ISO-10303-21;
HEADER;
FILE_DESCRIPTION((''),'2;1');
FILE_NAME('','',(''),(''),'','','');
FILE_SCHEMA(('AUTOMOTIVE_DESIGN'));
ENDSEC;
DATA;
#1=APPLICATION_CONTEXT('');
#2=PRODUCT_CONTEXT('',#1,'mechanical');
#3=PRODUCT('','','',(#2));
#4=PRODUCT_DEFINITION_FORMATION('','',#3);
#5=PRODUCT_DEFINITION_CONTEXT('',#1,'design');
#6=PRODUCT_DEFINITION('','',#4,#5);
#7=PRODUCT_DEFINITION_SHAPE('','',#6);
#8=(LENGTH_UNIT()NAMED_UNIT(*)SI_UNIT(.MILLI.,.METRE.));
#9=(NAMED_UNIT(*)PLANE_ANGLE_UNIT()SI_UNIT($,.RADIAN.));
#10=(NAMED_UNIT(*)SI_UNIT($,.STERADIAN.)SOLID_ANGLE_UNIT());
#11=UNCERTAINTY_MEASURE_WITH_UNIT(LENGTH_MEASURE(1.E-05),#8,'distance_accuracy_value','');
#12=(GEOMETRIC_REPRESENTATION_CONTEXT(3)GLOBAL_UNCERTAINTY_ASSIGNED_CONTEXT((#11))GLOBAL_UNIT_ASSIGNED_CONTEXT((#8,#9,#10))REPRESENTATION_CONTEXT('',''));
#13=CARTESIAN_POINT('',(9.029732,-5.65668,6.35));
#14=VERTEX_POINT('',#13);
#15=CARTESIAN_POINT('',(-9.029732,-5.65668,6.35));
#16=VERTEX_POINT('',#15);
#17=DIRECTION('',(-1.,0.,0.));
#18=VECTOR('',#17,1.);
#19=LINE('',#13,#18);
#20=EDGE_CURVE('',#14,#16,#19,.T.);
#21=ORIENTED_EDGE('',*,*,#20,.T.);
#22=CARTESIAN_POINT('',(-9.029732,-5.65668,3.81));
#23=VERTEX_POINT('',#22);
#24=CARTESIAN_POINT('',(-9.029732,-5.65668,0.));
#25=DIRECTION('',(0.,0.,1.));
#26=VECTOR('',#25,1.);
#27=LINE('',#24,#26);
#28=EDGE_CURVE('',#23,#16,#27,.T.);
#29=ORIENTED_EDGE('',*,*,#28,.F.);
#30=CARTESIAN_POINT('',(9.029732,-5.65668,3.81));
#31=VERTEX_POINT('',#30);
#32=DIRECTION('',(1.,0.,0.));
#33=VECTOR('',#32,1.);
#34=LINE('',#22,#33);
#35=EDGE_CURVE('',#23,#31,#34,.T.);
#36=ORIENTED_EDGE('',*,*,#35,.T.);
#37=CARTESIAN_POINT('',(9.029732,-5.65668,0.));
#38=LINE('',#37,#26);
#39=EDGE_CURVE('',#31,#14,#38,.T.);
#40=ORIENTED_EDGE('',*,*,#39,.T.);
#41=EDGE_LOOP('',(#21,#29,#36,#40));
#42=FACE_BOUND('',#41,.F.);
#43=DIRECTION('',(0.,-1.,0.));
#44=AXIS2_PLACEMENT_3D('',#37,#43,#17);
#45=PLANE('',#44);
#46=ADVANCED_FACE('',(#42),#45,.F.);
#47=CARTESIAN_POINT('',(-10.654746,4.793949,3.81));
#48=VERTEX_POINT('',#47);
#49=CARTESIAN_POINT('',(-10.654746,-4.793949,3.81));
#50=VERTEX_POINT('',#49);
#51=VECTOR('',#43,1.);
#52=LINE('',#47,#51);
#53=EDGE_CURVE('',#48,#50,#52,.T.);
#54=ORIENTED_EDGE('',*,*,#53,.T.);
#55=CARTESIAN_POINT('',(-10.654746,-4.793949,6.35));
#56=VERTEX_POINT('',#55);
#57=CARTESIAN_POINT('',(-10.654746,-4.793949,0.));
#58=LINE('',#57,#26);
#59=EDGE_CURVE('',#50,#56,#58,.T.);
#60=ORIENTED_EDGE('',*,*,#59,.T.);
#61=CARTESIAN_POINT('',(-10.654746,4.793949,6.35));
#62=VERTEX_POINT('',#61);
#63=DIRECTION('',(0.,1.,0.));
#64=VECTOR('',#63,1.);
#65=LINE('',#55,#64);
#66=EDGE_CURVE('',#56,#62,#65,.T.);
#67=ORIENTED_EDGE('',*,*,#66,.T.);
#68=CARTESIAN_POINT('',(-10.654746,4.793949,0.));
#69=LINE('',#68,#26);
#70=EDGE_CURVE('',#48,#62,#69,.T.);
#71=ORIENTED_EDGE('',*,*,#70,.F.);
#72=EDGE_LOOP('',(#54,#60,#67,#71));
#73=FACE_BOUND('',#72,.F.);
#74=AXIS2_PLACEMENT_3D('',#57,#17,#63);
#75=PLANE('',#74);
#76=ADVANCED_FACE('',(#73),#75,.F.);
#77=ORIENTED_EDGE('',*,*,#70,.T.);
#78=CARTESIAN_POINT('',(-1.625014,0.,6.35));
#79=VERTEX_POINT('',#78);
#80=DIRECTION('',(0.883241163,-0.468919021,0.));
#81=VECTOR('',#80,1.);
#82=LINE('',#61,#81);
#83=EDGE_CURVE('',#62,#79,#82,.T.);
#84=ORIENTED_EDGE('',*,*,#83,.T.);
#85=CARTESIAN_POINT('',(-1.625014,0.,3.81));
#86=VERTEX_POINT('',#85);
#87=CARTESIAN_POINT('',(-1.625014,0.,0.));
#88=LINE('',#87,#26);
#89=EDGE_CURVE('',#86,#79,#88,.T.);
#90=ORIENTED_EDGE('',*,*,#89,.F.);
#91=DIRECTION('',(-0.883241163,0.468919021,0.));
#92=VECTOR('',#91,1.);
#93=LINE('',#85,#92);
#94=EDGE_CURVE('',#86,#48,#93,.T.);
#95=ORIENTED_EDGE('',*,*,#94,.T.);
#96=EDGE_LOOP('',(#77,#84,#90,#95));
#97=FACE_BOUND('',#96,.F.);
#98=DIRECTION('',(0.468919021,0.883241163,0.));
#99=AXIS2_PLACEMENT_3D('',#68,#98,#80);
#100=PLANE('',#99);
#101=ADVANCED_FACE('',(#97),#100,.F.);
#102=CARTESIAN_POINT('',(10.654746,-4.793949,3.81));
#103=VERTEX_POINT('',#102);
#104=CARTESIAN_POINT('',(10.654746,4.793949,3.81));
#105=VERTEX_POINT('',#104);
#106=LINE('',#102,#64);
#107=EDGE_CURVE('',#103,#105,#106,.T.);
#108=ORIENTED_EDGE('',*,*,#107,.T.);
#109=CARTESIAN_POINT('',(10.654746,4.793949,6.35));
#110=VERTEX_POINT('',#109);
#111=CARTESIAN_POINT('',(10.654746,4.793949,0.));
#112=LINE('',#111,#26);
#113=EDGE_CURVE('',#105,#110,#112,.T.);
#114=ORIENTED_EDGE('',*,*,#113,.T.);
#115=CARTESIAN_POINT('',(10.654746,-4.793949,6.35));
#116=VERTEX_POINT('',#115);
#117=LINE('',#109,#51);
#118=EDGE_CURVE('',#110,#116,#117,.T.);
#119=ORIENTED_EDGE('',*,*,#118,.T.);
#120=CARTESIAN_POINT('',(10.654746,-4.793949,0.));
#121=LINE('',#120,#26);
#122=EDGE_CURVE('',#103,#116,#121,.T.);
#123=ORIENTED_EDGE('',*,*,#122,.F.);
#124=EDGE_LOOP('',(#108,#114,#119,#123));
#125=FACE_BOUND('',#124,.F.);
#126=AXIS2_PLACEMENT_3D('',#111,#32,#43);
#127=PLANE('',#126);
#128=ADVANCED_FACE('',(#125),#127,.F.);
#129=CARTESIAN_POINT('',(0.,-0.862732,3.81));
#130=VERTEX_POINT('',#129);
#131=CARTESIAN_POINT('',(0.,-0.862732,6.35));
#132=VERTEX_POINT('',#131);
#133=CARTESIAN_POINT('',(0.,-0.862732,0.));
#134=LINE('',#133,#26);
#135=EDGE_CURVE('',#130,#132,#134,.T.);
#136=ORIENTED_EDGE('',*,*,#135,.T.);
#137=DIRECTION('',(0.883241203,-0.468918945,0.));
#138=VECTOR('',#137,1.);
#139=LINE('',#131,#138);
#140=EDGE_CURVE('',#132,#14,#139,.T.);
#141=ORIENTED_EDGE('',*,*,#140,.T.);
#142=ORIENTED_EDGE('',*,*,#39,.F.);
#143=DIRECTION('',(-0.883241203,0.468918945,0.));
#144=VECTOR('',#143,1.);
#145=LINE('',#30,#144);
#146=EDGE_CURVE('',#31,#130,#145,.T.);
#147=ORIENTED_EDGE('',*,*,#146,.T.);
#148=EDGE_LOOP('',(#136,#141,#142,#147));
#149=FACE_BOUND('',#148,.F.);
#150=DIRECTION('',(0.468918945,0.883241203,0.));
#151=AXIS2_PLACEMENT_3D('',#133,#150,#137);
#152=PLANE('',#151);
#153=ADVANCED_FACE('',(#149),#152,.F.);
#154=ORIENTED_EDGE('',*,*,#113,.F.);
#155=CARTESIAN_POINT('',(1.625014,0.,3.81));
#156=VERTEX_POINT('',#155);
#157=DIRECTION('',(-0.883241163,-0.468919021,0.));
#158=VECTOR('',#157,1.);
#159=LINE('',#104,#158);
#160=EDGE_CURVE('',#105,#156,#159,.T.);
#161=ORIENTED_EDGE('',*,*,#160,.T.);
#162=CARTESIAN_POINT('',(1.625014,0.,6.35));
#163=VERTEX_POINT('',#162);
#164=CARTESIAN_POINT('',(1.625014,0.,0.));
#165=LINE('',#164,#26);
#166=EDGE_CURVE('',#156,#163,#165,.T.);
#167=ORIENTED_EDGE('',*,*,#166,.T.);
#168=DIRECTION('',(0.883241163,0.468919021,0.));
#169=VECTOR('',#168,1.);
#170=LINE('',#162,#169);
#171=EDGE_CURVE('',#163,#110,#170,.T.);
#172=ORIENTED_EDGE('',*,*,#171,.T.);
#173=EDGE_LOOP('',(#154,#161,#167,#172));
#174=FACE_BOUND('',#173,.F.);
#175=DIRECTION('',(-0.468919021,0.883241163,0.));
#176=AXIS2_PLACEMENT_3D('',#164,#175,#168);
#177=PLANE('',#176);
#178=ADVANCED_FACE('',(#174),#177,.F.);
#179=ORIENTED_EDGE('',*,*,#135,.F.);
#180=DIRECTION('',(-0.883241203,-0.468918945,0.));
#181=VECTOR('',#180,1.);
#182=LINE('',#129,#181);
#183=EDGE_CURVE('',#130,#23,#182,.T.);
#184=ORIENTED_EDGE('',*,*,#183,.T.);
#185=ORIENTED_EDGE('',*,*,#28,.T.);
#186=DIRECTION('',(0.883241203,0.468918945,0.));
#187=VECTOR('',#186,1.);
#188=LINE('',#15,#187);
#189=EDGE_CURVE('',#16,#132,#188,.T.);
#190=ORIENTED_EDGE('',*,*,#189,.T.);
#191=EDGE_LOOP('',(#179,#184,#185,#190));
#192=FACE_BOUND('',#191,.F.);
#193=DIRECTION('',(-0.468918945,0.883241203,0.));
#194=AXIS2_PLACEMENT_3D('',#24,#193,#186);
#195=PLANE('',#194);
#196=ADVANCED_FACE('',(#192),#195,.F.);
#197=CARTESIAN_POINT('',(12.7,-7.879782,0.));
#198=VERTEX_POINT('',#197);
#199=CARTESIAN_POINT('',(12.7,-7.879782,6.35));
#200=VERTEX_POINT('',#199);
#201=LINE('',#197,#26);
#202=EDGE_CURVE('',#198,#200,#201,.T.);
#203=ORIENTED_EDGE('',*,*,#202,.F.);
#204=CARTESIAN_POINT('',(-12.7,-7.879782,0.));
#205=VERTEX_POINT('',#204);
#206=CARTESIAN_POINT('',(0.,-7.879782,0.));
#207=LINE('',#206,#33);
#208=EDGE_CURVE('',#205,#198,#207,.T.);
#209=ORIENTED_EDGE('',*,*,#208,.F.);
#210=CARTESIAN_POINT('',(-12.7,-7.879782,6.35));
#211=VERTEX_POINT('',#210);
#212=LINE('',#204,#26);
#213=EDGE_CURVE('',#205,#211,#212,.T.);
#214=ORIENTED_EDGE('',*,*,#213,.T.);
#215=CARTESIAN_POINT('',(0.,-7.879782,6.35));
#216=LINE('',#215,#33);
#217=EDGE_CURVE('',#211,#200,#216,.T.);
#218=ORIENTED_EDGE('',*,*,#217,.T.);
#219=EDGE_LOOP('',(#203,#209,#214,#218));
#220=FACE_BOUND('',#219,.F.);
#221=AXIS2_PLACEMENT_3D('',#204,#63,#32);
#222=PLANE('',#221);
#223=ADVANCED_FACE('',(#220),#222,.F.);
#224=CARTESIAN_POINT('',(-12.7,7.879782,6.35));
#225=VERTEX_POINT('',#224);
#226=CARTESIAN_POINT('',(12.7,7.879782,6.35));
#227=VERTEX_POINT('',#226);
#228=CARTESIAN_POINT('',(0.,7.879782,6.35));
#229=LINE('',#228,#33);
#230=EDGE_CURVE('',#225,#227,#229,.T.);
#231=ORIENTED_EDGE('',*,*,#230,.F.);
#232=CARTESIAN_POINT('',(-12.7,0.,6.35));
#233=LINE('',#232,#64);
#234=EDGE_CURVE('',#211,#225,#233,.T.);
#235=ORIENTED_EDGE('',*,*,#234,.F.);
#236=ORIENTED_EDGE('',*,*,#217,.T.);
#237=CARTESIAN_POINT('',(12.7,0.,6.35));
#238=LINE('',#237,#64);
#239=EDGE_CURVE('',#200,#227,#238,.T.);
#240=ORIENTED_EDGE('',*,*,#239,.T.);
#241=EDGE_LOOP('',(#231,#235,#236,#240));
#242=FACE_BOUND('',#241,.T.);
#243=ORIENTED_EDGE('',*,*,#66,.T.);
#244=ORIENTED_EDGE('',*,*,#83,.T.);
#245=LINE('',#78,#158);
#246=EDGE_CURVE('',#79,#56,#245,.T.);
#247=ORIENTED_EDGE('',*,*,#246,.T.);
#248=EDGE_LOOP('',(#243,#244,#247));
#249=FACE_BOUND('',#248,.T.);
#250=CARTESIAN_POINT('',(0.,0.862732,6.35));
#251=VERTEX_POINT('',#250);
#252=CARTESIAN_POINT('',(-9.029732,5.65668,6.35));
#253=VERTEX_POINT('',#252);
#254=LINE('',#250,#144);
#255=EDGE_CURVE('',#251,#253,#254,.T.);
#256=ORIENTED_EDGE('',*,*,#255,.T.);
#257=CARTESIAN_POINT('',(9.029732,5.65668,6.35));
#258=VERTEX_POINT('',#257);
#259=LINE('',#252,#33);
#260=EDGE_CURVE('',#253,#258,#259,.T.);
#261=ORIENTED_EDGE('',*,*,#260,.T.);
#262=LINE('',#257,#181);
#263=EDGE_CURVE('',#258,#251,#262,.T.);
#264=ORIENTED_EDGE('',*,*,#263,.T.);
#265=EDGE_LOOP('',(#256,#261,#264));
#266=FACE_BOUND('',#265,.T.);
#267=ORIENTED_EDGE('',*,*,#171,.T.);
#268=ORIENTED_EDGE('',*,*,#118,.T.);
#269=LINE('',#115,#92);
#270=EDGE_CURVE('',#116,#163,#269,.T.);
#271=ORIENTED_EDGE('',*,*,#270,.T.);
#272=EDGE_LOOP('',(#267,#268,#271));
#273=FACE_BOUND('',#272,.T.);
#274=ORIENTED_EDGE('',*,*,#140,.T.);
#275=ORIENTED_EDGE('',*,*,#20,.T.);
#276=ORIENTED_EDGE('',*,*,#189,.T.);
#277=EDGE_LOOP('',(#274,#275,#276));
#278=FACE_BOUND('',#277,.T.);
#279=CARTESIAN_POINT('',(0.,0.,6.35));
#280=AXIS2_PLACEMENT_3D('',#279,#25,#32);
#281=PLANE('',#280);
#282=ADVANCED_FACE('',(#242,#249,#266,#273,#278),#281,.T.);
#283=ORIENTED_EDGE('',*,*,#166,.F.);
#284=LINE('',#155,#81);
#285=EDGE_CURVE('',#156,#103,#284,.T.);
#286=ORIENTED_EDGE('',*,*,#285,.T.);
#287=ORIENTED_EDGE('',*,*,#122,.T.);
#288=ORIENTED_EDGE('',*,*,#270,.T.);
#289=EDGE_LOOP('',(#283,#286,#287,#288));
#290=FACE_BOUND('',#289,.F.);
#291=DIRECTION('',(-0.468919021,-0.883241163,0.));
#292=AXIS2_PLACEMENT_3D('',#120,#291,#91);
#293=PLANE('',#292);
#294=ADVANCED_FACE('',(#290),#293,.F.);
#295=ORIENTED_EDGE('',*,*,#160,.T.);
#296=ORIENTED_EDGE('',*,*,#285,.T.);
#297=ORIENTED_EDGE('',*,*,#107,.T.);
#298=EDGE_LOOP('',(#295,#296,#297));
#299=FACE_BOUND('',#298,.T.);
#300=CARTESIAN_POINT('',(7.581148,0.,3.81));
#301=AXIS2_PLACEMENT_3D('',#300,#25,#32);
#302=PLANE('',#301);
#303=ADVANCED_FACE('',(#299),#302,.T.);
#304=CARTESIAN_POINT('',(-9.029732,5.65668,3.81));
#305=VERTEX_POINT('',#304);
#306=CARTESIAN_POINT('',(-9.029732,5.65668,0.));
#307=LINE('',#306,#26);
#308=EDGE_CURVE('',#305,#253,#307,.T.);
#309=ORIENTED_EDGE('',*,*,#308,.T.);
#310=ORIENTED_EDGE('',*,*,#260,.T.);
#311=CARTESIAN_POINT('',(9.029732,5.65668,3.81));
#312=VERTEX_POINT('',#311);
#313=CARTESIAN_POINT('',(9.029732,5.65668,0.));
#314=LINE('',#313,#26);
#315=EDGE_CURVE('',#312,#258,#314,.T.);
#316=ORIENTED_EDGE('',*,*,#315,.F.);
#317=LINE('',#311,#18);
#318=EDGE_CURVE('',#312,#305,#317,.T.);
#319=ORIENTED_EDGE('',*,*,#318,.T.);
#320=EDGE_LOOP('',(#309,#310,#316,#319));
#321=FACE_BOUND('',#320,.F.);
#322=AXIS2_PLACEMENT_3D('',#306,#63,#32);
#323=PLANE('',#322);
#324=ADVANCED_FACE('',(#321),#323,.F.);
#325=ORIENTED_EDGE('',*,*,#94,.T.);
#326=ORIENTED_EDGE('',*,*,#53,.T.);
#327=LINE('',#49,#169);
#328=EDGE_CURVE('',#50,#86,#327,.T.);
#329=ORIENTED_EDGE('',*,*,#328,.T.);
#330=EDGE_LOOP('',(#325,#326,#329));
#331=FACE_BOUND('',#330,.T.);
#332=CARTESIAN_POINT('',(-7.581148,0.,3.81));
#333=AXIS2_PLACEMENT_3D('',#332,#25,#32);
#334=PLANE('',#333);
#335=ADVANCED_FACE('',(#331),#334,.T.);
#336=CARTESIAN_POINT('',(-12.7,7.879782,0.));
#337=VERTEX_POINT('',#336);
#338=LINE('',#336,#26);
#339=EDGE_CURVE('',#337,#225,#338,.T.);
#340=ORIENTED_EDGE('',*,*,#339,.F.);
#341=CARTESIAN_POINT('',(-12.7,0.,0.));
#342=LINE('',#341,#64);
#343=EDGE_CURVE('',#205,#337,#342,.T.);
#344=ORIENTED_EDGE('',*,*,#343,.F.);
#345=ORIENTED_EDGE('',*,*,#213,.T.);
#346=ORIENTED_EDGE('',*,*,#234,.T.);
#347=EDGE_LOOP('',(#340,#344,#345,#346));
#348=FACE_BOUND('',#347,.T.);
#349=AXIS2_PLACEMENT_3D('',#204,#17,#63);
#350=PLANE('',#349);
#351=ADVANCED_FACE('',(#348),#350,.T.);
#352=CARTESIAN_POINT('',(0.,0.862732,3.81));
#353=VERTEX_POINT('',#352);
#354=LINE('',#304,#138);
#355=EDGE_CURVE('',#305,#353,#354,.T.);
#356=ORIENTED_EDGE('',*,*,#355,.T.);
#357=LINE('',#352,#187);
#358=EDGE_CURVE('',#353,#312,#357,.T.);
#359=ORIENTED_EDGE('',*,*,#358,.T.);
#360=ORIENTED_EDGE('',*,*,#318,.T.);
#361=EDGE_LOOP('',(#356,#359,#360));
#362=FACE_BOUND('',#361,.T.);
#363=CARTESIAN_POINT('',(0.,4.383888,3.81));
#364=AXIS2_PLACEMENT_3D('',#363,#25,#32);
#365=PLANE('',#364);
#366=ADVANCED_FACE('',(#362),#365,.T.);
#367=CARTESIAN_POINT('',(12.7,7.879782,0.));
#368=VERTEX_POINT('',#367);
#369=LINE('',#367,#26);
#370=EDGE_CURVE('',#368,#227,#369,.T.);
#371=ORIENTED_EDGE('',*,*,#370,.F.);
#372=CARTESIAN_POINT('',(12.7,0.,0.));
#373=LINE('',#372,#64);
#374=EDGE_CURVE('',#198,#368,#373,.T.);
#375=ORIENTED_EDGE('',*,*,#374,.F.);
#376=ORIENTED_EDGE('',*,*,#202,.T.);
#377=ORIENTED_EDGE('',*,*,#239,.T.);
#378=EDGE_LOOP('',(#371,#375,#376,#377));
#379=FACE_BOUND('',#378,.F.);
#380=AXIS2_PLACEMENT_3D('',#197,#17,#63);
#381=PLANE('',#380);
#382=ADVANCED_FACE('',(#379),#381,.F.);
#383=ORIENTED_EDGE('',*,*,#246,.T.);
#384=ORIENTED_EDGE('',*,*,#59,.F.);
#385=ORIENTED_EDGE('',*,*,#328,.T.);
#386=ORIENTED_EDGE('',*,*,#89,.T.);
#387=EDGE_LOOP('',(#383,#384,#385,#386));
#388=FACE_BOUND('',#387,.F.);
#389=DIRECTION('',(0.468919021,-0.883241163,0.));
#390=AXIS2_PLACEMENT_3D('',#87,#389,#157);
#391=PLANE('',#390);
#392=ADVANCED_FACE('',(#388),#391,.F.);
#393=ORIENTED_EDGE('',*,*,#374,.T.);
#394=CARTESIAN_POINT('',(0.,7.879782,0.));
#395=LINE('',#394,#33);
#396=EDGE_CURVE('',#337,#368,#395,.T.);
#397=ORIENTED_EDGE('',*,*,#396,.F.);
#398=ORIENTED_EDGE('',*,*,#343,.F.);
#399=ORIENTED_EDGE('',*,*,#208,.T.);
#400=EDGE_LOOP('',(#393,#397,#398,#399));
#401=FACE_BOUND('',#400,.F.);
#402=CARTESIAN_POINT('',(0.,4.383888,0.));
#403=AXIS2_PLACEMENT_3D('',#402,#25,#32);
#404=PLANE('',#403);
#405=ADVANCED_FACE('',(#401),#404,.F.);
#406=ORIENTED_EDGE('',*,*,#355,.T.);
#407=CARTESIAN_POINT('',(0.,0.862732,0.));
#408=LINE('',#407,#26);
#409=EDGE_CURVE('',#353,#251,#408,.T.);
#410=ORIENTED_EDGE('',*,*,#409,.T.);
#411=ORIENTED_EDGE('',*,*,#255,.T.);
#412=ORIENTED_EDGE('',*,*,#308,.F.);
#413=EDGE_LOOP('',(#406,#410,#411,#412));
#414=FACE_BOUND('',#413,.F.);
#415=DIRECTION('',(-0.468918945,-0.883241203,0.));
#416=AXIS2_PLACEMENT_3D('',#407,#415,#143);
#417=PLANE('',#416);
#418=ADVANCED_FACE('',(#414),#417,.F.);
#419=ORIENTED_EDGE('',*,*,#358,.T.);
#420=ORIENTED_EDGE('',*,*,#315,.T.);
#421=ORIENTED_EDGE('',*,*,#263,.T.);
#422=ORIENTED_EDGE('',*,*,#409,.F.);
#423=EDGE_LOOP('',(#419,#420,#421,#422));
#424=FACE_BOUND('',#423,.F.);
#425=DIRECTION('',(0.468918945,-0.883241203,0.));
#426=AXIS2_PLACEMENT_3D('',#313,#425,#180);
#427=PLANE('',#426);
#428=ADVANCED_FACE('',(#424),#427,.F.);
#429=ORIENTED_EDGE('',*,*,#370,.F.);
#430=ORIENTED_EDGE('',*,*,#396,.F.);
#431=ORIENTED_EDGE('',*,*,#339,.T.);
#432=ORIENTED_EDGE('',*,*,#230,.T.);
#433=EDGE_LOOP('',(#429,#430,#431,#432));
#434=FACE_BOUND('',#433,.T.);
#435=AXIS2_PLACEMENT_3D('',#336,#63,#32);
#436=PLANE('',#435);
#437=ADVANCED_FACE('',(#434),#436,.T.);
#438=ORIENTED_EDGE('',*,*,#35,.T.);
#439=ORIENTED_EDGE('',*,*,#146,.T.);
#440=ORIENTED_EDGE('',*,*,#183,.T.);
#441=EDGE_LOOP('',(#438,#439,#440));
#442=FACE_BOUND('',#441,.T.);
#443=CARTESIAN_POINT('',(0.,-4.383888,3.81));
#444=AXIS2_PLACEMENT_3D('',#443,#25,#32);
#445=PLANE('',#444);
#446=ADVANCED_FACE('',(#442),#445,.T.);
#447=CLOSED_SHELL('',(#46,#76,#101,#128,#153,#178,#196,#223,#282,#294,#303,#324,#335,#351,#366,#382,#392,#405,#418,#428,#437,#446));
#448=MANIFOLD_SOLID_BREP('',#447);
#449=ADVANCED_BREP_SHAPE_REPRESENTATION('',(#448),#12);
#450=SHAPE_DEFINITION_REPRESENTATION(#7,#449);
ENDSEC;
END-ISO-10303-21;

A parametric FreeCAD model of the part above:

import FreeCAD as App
import Part
import Sketcher
Q = App.Units.Quantity


def add_polygon(sketch, points):
    """Adds a closed chain of lines whose ends are joined by coincident constraints."""
    first, n = sketch.GeometryCount, len(points)
    for a, b in zip(points, points[1:] + points[:1]):
        sketch.addGeometry(Part.LineSegment(App.Vector(*a, 0), App.Vector(*b, 0)), False)
    for i in range(n):
        sketch.addConstraint(Sketcher.Constraint("Coincident", first + i, 2, first + (i + 1) % n, 1))

doc = App.newDocument("Part")
body = doc.addObject("PartDesign::Body", "Body")

# Sketch on XY plane
sketch1 = body.newObject("Sketcher::SketchObject", "Sketch")
sketch1.AttachmentSupport = (doc.getObject("XY_Plane"), [""])
sketch1.MapMode = "FlatFace"
add_polygon(sketch1, [(-13, 8), (-13, -8), (13, -8), (13, 8)])  # lines 0-3
add_polygon(sketch1, [(-2, 0), (-11, -5), (-11, 5)])  # lines 4-6
add_polygon(sketch1, [(0, -1), (9, -6), (-9, -6)])  # lines 7-9
add_polygon(sketch1, [(11, -5), (2, 0), (11, 5)])  # lines 10-12
add_polygon(sketch1, [(9, 6), (0, 1), (-9, 6)])  # lines 13-15
sketch1.addConstraint([
    Sketcher.Constraint("Vertical", 0),
    Sketcher.Constraint("Horizontal", 1),
    Sketcher.Constraint("Vertical", 2),
    Sketcher.Constraint("Horizontal", 3),
    Sketcher.Constraint("Vertical", 5),
    Sketcher.Constraint("Horizontal", 8),
    Sketcher.Constraint("Vertical", 12),
    Sketcher.Constraint("Horizontal", 15),
    Sketcher.Constraint("Symmetric", 0, 2, 2, 2, -1, 1),
    Sketcher.Constraint("Symmetric", 6, 2, 10, 2, -1, 1),
    Sketcher.Constraint("Symmetric", 4, 2, 11, 2, -1, 1),
    Sketcher.Constraint("Symmetric", 9, 2, 13, 2, -1, 1),
    Sketcher.Constraint("Symmetric", 7, 2, 14, 2, -1, 1),
    Sketcher.Constraint("PointOnObject", 6, 2, -1),
    Sketcher.Constraint("PointOnObject", 9, 2, -2),
    Sketcher.Constraint("Parallel", 6, 7),
    Sketcher.Constraint("Parallel", 4, 9),
    Sketcher.Constraint("Parallel", 7, 10),
    Sketcher.Constraint("Parallel", 11, 13),
    Sketcher.Constraint("Horizontal", 5, 2, 11, 2),
    Sketcher.Constraint("Equal", 6, 7),
    Sketcher.Constraint("DistanceX", 1, 1, 1, 2, Q("1 in")),
    Sketcher.Constraint("DistanceY", 1, 2, 7, 2, Q("2.223102 mm")),
    Sketcher.Constraint("DistanceX", 8, 2, 8, 1, Q("18.059464 mm")),
    Sketcher.Constraint("DistanceY", 0, 2, 0, 1, Q("15.759564 mm")),
    Sketcher.Constraint("DistanceY", 5, 1, 5, 2, Q("9.587898 mm")),
    Sketcher.Constraint("DistanceX", 4, 2, 10, 2, Q("12.27976 mm")),
])
pad1 = body.newObject("PartDesign::Pad", "Pad")
pad1.Profile = sketch1
pad1.Length = Q("0.25 in")

# Sketch on XY plane
sketch2 = body.newObject("Sketcher::SketchObject", "Sketch001")
sketch2.AttachmentSupport = (doc.getObject("XY_Plane"), [""])
sketch2.MapMode = "FlatFace"
add_polygon(sketch2, [(9, 6), (-9, 6), (0, 1)])  # lines 0-2
add_polygon(sketch2, [(-2, 0), (-11, 5), (-11, -5)])  # lines 3-5
add_polygon(sketch2, [(0, -1), (-9, -6), (9, -6)])  # lines 6-8
add_polygon(sketch2, [(11, -5), (11, 5), (2, 0)])  # lines 9-11
sketch2.addConstraint([
    Sketcher.Constraint("Horizontal", 0),
    Sketcher.Constraint("Vertical", 4),
    Sketcher.Constraint("Horizontal", 7),
    Sketcher.Constraint("Vertical", 9),
    Sketcher.Constraint("Symmetric", 2, 2, 6, 2, -1, 1),
    Sketcher.Constraint("Symmetric", 1, 2, 8, 2, -1, 1),
    Sketcher.Constraint("Symmetric", 4, 2, 9, 2, -1, 1),
    Sketcher.Constraint("Symmetric", 5, 2, 10, 2, -1, 1),
    Sketcher.Constraint("PointOnObject", 1, 2, -2),
    Sketcher.Constraint("PointOnObject", 5, 2, -1),
    Sketcher.Constraint("Parallel", 1, 3),
    Sketcher.Constraint("Parallel", 2, 5),
    Sketcher.Constraint("Parallel", 3, 8),
    Sketcher.Constraint("Parallel", 8, 11),
    Sketcher.Constraint("Horizontal", 3, 2, 9, 2),
    Sketcher.Constraint("Equal", 2, 3),
    Sketcher.Constraint("DistanceX", 0, 2, 0, 1, Q("18.059464 mm")),
    Sketcher.Constraint("DistanceY", 4, 2, 4, 1, Q("9.587898 mm")),
    Sketcher.Constraint("DistanceY", -1, 1, 0, 2, Q("5.65668 mm")),
    Sketcher.Constraint("DistanceX", 5, 2, 9, 2, Q("12.27976 mm")),
])
pad2 = body.newObject("PartDesign::Pad", "Pad001")
pad2.Profile = sketch2
pad2.Length = Q("0.15 in")

doc.recompute()
